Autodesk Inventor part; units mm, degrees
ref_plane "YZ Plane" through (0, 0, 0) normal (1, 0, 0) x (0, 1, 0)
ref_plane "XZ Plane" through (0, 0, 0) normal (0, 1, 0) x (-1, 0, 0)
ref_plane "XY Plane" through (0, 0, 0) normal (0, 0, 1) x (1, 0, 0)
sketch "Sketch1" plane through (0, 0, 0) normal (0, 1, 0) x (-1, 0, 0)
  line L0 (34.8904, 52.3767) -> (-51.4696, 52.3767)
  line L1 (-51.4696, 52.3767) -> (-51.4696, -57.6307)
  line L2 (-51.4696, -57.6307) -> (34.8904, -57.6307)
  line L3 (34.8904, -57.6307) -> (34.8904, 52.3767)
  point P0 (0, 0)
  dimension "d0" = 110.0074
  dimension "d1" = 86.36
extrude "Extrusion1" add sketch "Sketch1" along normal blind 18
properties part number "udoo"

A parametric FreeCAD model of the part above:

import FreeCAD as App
import Part
import Sketcher

V = App.Vector
Q = App.Units.Quantity


def add_polygon(sketch, points):
    """Adds a closed chain of lines whose ends are joined by coincident constraints."""
    first, n = sketch.GeometryCount, len(points)
    for a, b in zip(points, points[1:] + points[:1]):
        sketch.addGeometry(Part.LineSegment(App.Vector(*a, 0), App.Vector(*b, 0)), False)
    for i in range(n):
        sketch.addConstraint(Sketcher.Constraint("Coincident", first + i, 2, first + (i + 1) % n, 1))

doc = App.newDocument("Part")
body = doc.addObject("PartDesign::Body", "Body")

sketch1 = body.newObject("Sketcher::SketchObject", "Sketch")
sketch1.AttachmentSupport = (doc.getObject("XZ_Plane"), [""])
sketch1.MapMode = "FlatFace"
add_polygon(sketch1, [(-35, -58), (-35, 52), (51, 52), (51, -58)])
sketch1.addConstraint([
    Sketcher.Constraint("Vertical", 0),
    Sketcher.Constraint("Horizontal", 1),
    Sketcher.Constraint("Vertical", 2),
    Sketcher.Constraint("Horizontal", 3),
    Sketcher.Constraint("DistanceX", 1, 1, 1, 2, Q("3.4 in")),
    Sketcher.Constraint("DistanceY", 0, 1, 0, 2, Q("4.331 in")),
    Sketcher.Constraint("DistanceX", 0, 2, -1, 1, Q("34.8904 mm")),
    Sketcher.Constraint("DistanceY", -1, 1, 0, 2, Q("52.3767 mm")),
])
pad1 = body.newObject("PartDesign::Pad", "Pad")
pad1.Profile = sketch1
pad1.Length = 18
pad1.Reversed = True

doc.recompute()
